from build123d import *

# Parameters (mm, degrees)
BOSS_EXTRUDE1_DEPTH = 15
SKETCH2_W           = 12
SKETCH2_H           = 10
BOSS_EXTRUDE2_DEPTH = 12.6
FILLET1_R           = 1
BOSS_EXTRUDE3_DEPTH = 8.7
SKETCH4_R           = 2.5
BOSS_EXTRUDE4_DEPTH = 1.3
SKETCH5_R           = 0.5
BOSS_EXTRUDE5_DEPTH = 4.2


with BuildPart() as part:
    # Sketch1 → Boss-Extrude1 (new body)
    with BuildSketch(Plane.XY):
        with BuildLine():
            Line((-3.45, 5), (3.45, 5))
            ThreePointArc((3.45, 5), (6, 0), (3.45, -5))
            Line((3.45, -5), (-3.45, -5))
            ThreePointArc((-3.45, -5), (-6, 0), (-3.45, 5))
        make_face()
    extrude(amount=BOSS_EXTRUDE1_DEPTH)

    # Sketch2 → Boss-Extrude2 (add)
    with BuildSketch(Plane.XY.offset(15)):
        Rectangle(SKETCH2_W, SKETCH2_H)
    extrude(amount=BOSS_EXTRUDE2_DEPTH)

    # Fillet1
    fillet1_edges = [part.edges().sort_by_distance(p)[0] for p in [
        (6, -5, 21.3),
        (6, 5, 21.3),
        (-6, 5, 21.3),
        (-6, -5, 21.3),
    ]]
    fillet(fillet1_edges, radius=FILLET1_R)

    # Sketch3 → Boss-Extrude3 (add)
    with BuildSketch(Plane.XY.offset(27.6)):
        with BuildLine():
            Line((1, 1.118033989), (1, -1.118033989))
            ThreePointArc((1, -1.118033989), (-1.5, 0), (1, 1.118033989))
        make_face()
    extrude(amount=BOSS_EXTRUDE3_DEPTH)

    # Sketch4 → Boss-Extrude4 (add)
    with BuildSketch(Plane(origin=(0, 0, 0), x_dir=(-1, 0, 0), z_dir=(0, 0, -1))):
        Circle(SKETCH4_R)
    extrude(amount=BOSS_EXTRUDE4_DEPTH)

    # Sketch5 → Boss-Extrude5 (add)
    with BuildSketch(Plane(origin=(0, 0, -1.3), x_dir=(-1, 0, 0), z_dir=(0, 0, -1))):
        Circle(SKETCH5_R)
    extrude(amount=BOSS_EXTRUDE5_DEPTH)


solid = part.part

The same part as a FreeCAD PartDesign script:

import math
import FreeCAD as App
import Part
import Sketcher
from FreeCAD import Vector
Q = App.Units.Quantity


def edges_at(feature, points):
    """Names of the edges that pass closest to the given points."""
    edges = feature.Shape.Edges
    near = lambda p: min(range(len(edges)), key=lambda i: edges[i].distToShape(Part.Vertex(*p))[0])
    return sorted({f"Edge{near(p) + 1}" for p in points})

doc = App.newDocument("Part")
body = doc.addObject("PartDesign::Body", "Body")

# Sketch on XY plane
sketch1 = body.newObject("Sketcher::SketchObject", "Sketch")
sketch1.AttachmentSupport = (doc.getObject("XY_Plane"), [""])
sketch1.MapMode = "FlatFace"
sketch1.addGeometry(Part.LineSegment(Vector(3.45, 5, 0), Vector(-3.45, 5, 0)), False)
sketch1.addGeometry(Part.ArcOfCircle(Part.Circle(Vector(0.176961, 0, 0), Vector(0, 0, 1), 6.176961), math.radians(125.956837), math.radians(234.043163)), False)
sketch1.addGeometry(Part.LineSegment(Vector(-3.45, -5, 0), Vector(3.45, -5, 0)), False)
sketch1.addGeometry(Part.ArcOfCircle(Part.Circle(Vector(-0.176961, 0, 0), Vector(0, 0, 1), 6.176961), math.radians(-54.043163), math.radians(54.043163)), False)
sketch1.addConstraint(Sketcher.Constraint("Coincident", 0, 2, 1, 1))
sketch1.addConstraint(Sketcher.Constraint("Coincident", 1, 2, 2, 1))
sketch1.addConstraint(Sketcher.Constraint("Coincident", 2, 2, 3, 1))
sketch1.addConstraint(Sketcher.Constraint("Coincident", 3, 2, 0, 1))
sketch1.addConstraint(Sketcher.Constraint("Horizontal", 0))
sketch1.addConstraint(Sketcher.Constraint("Horizontal", 2))
sketch1.addConstraint(Sketcher.Constraint("Equal", 1, 3))
sketch1.addConstraint(Sketcher.Constraint("Symmetric", 1, 3, 3, 3, -1, 1))
sketch1.addConstraint(Sketcher.Constraint("Symmetric", 0, 2, 1, 2, -1))
sketch1.addConstraint(Sketcher.Constraint("DistanceX", 0, 2, 0, 1, Q("6.9 mm")))
sketch1.addConstraint(Sketcher.Constraint("DistanceY", -1, 1, 0, 2, Q("5 mm")))
sketch1.addConstraint(Sketcher.Constraint("Radius", 1, Q("6.176961 mm")))
pad1 = body.newObject("PartDesign::Pad", "Pad")
pad1.Profile = sketch1
pad1.Length = 15

# Sketch on XY plane
sketch2 = body.newObject("Sketcher::SketchObject", "Sketch001")
sketch2.AttachmentSupport = (doc.getObject("XY_Plane"), [""])
sketch2.MapMode = "FlatFace"
sketch2.AttachmentOffset = App.Placement(Vector(0, 0, 15), App.Rotation())
sketch2.addGeometry(Part.LineSegment(Vector(-6, 5, 0), Vector(-6, -5, 0)), False)
sketch2.addGeometry(Part.LineSegment(Vector(-6, -5, 0), Vector(6, -5, 0)), False)
sketch2.addGeometry(Part.LineSegment(Vector(6, -5, 0), Vector(6, 5, 0)), False)
sketch2.addGeometry(Part.LineSegment(Vector(6, 5, 0), Vector(-6, 5, 0)), False)
sketch2.addConstraint(Sketcher.Constraint("Coincident", 0, 2, 1, 1))
sketch2.addConstraint(Sketcher.Constraint("Coincident", 1, 2, 2, 1))
sketch2.addConstraint(Sketcher.Constraint("Coincident", 2, 2, 3, 1))
sketch2.addConstraint(Sketcher.Constraint("Coincident", 3, 2, 0, 1))
sketch2.addConstraint(Sketcher.Constraint("Vertical", 0))
sketch2.addConstraint(Sketcher.Constraint("Horizontal", 1))
sketch2.addConstraint(Sketcher.Constraint("Vertical", 2))
sketch2.addConstraint(Sketcher.Constraint("Horizontal", 3))
sketch2.addConstraint(Sketcher.Constraint("Symmetric", 0, 2, 2, 2, -1, 1))
sketch2.addConstraint(Sketcher.Constraint("DistanceX", 1, 1, 1, 2, Q("12 mm")))
sketch2.addConstraint(Sketcher.Constraint("DistanceY", 0, 2, 0, 1, Q("10 mm")))
pad2 = body.newObject("PartDesign::Pad", "Pad001")
pad2.Profile = sketch2
pad2.Length = 12.6
doc.recompute()

fillet = body.newObject("PartDesign::Fillet", "Fillet")
fillet.Base = (pad2, edges_at(pad2, [
    (6, -5, 21.3),
    (6, 5, 21.3),
    (-6, 5, 21.3),
    (-6, -5, 21.3),
]))
fillet.Radius = 1

# Sketch on XY plane
sketch3 = body.newObject("Sketcher::SketchObject", "Sketch002")
sketch3.AttachmentSupport = (doc.getObject("XY_Plane"), [""])
sketch3.MapMode = "FlatFace"
sketch3.AttachmentOffset = App.Placement(Vector(0, 0, 27.6), App.Rotation())
sketch3.addGeometry(Part.LineSegment(Vector(1, -1.118034, 0), Vector(1, 1.118034, 0)), False)
sketch3.addGeometry(Part.ArcOfCircle(Part.Circle(Vector(0, 0, 0), Vector(0, 0, 1), 1.5), math.radians(48.189685), math.radians(311.810315)), False)
sketch3.addConstraint(Sketcher.Constraint("Coincident", 0, 1, 1, 2))
sketch3.addConstraint(Sketcher.Constraint("Coincident", 1, 1, 0, 2))
sketch3.addConstraint(Sketcher.Constraint("Vertical", 0))
sketch3.addConstraint(Sketcher.Constraint("Coincident", 1, 3, -1, 1))
sketch3.addConstraint(Sketcher.Constraint("Radius", 1, Q("1.5 mm")))
sketch3.addConstraint(Sketcher.Constraint("DistanceX", -1, 1, 0, 1, Q("1 mm")))
pad3 = body.newObject("PartDesign::Pad", "Pad002")
pad3.Profile = sketch3
pad3.Length = 8.7

# Sketch on XY plane
sketch4 = body.newObject("Sketcher::SketchObject", "Sketch003")
sketch4.AttachmentSupport = (doc.getObject("XY_Plane"), [""])
sketch4.MapMode = "FlatFace"
sketch4.addGeometry(Part.Circle(Vector(0, 0, 0), Vector(0, 0, 1), 2.5), False)
sketch4.addConstraint(Sketcher.Constraint("Coincident", 0, 3, -1, 1))
sketch4.addConstraint(Sketcher.Constraint("Diameter", 0, Q("5 mm")))
pad4 = body.newObject("PartDesign::Pad", "Pad003")
pad4.Profile = sketch4
pad4.Length = 1.3
pad4.Reversed = True

# Sketch on XY plane
sketch5 = body.newObject("Sketcher::SketchObject", "Sketch004")
sketch5.AttachmentSupport = (doc.getObject("XY_Plane"), [""])
sketch5.MapMode = "FlatFace"
sketch5.AttachmentOffset = App.Placement(Vector(0, 0, -1.3), App.Rotation())
sketch5.addGeometry(Part.Circle(Vector(0, 0, 0), Vector(0, 0, 1), 0.5), False)
sketch5.addConstraint(Sketcher.Constraint("Coincident", 0, 3, -1, 1))
sketch5.addConstraint(Sketcher.Constraint("Diameter", 0, Q("1 mm")))
pad5 = body.newObject("PartDesign::Pad", "Pad004")
pad5.Profile = sketch5
pad5.Length = 4.2
pad5.Reversed = True

doc.recompute()
